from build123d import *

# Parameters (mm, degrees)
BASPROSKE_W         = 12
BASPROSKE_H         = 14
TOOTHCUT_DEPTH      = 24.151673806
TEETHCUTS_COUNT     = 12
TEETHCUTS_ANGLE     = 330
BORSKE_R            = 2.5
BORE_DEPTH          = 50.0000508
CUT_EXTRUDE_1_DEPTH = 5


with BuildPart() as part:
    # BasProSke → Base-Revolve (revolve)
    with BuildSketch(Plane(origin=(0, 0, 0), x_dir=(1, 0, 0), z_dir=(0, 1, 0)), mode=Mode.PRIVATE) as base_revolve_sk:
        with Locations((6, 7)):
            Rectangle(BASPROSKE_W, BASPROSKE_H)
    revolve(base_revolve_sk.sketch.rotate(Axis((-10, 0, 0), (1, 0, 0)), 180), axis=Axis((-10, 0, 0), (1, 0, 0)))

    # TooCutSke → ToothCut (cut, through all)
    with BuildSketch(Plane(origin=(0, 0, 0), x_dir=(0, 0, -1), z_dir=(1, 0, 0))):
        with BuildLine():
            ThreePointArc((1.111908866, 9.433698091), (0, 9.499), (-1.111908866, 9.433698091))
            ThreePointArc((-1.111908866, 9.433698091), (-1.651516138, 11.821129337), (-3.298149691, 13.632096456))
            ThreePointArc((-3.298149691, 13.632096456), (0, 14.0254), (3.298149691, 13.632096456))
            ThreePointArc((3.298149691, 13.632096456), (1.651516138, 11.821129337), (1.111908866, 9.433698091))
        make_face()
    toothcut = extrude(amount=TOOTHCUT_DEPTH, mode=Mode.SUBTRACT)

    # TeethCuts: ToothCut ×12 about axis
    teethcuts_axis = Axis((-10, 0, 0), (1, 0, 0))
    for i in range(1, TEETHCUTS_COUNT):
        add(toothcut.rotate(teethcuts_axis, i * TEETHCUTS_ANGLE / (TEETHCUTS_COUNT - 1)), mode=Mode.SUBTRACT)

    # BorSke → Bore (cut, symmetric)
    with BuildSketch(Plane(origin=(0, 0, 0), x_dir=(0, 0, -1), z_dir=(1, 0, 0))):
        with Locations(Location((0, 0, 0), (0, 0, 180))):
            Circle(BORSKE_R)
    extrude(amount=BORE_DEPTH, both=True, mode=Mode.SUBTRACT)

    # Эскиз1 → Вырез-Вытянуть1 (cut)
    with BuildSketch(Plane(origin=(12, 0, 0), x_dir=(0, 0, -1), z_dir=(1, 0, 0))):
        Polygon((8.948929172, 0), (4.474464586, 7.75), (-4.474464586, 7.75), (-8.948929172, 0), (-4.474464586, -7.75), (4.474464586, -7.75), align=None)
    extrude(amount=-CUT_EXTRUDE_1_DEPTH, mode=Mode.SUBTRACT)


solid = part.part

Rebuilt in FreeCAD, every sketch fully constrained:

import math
import FreeCAD as App
import Part
import Sketcher

V = App.Vector
Q = App.Units.Quantity


def add_polygon(sketch, points):
    """Adds a closed chain of lines whose ends are joined by coincident constraints."""
    first, n = sketch.GeometryCount, len(points)
    for a, b in zip(points, points[1:] + points[:1]):
        sketch.addGeometry(Part.LineSegment(App.Vector(*a, 0), App.Vector(*b, 0)), False)
    for i in range(n):
        sketch.addConstraint(Sketcher.Constraint("Coincident", first + i, 2, first + (i + 1) % n, 1))

doc = App.newDocument("Part")
body = doc.addObject("PartDesign::Body", "Body")

sketch1 = body.newObject("Sketcher::SketchObject", "Sketch")
sketch1.AttachmentSupport = (doc.getObject("XZ_Plane"), [""])
sketch1.MapMode = "FlatFace"
add_polygon(sketch1, [(0, -14), (0, 0), (12, 0), (12, -14)])
sketch1.addConstraint([
    Sketcher.Constraint("Vertical", 0),
    Sketcher.Constraint("Horizontal", 1),
    Sketcher.Constraint("Vertical", 2),
    Sketcher.Constraint("Horizontal", 3),
    Sketcher.Constraint("Coincident", 0, 2, -1, 1),
    Sketcher.Constraint("DistanceX", 1, 1, 1, 2, 12.0),
    Sketcher.Constraint("DistanceY", 0, 1, 0, 2, 14.0),
])
revolution = body.newObject("PartDesign::Revolution", "Revolution")
revolution.Profile = sketch1
revolution.ReferenceAxis = (sketch1, ["H_Axis"])
revolution.Angle = 360

sketch2 = body.newObject("Sketcher::SketchObject", "Sketch001")
sketch2.AttachmentSupport = (doc.getObject("YZ_Plane"), [""])
sketch2.MapMode = "FlatFace"
sketch2.addGeometry([
    Part.ArcOfCircle(Part.Circle(V(0, 0, 0), V(0, 0, 1), 9.5), math.radians(-6.72), math.radians(6.72)),
    Part.ArcOfCircle(Part.Circle(V(9.6, -5.9, 0), V(0, 0, 1), 4.8), math.radians(33), math.radians(92)),
    Part.ArcOfCircle(Part.Circle(V(0, 0, 0), V(0, 0, 1), 14), math.radians(-14), math.radians(14)),
    Part.ArcOfCircle(Part.Circle(V(9.6, 5.9, 0), V(0, 0, 1), 4.8), math.radians(-92), math.radians(-33)),
], False)
sketch2.addConstraint([
    Sketcher.Constraint("Coincident", 0, 1, 1, 2),
    Sketcher.Constraint("Coincident", 1, 1, 2, 1),
    Sketcher.Constraint("Coincident", 2, 2, 3, 2),
    Sketcher.Constraint("Coincident", 3, 1, 0, 2),
    Sketcher.Constraint("Coincident", 0, 3, -1, 1),
    Sketcher.Constraint("Coincident", 2, 3, -1, 1),
    Sketcher.Constraint("Equal", 1, 3),
    Sketcher.Constraint("Symmetric", 1, 3, 3, 3, -1),
    Sketcher.Constraint("Radius", 1, 4.8),
    Sketcher.Constraint("Radius", 0, 9.499),
    Sketcher.Constraint("Radius", 2, 14.0254),
    Sketcher.Constraint("DistanceX", -1, 1, 0, 1, 9.433698),
    Sketcher.Constraint("DistanceX", 0, 1, 1, 1, 4.198398),
])
pocket1 = body.newObject("PartDesign::Pocket", "Pocket")
pocket1.Profile = sketch2
pocket1.Type = "ThroughAll"
pocket1.Reversed = True
doc.recompute()

polarpattern = body.newObject("PartDesign::PolarPattern", "PolarPattern")
polarpattern.Originals = [pocket1]
polarpattern.Axis = (doc.getObject("X_Axis"), [""])
polarpattern.Angle = 360
polarpattern.Occurrences = 12
body.Tip = polarpattern

sketch3 = body.newObject("Sketcher::SketchObject", "Sketch002")
sketch3.AttachmentSupport = (doc.getObject("YZ_Plane"), [""])
sketch3.MapMode = "FlatFace"
sketch3.addGeometry(Part.Circle(V(0, 0, 0), V(0, 0, 1), 2.5), False)
sketch3.addConstraint([
    Sketcher.Constraint("Coincident", 0, 3, -1, 1),
    Sketcher.Constraint("Diameter", 0, 5.0),
])
pocket2 = body.newObject("PartDesign::Pocket", "Pocket001")
pocket2.Profile = sketch3
pocket2.Length = 100.000102
pocket2.Midplane = True

sketch4 = body.newObject("Sketcher::SketchObject", "Sketch003")
sketch4.AttachmentSupport = (doc.getObject("YZ_Plane"), [""])
sketch4.MapMode = "FlatFace"
sketch4.AttachmentOffset = App.Placement(V(0, 0, 12), App.Rotation())
add_polygon(sketch4, [(0, -9), (8, -4), (8, 4), (0, 9), (-8, 4), (-8, -4)])
sketch4.addConstraint([
    Sketcher.Constraint("Vertical", 1),
    Sketcher.Constraint("Vertical", 4),
    Sketcher.Constraint("Symmetric", 0, 2, 3, 2, -1, 1),
    Sketcher.Constraint("Symmetric", 2, 2, 5, 2, -1, 1),
    Sketcher.Constraint("PointOnObject", 2, 2, -2),
    Sketcher.Constraint("Parallel", 2, 5),
    Sketcher.Constraint("Horizontal", 1, 2, 3, 2),
    Sketcher.Constraint("Angle", 0, Q("30 deg")),
    Sketcher.Constraint("DistanceX", 3, 2, 1, 2, 15.5),
    Sketcher.Constraint("DistanceY", 1, 1, 1, 2, 8.948929),
])
pocket3 = body.newObject("PartDesign::Pocket", "Pocket002")
pocket3.Profile = sketch4
pocket3.Length = 5

doc.recompute()
